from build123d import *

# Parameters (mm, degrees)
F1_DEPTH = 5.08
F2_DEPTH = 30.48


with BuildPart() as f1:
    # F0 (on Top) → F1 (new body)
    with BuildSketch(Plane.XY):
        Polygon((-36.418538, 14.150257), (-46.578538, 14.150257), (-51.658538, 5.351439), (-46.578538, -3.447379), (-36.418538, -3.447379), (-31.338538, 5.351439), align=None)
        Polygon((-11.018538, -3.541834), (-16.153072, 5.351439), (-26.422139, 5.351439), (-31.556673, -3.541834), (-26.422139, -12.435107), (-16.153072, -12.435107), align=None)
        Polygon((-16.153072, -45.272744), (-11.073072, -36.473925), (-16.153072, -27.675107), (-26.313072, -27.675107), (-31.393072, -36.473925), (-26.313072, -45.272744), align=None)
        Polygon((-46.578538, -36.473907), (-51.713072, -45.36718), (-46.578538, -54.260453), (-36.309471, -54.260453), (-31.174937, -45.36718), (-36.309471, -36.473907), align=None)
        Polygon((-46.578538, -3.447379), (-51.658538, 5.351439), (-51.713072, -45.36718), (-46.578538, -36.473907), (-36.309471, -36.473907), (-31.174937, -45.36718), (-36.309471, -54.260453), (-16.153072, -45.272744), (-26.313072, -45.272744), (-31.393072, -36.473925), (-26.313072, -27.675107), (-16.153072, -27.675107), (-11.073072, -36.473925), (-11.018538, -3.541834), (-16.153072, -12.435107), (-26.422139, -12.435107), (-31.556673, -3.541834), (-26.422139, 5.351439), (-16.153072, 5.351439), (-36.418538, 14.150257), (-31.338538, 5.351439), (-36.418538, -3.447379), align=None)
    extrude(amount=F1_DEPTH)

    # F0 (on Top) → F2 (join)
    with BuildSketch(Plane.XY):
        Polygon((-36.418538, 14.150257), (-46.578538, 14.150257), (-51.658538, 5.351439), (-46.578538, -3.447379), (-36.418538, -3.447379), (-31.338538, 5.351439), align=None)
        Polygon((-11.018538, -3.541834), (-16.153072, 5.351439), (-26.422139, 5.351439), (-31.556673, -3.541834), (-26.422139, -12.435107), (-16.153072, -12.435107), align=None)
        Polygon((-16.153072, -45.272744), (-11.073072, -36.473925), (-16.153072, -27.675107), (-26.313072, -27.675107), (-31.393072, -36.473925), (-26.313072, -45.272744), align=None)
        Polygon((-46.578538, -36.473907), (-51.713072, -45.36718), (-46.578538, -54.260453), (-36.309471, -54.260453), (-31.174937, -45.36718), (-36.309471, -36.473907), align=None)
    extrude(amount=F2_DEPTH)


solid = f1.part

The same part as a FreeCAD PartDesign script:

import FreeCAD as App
import Part
import Sketcher
Q = App.Units.Quantity

doc = App.newDocument("Part")
body = doc.addObject("PartDesign::Body", "Body")

# Sketch on XY plane
sketch1 = doc.addObject("Sketcher::SketchObject", "Sketch")
body.addObject(sketch1)
sketch1.AttachmentSupport = (doc.XY_Plane, [""])
sketch1.MapMode = "FlatFace"
sketch1.addGeometry([
    Part.LineSegment(App.Vector(-36.418538, 14.150257, 0), App.Vector(-46.578538, 14.150257, 0)),  # 0
    Part.LineSegment(App.Vector(-46.578538, 14.150257, 0), App.Vector(-51.658538, 5.351439, 0)),  # 1
    Part.LineSegment(App.Vector(-51.658538, 5.351439, 0), App.Vector(-51.713072, -45.36718, 0)),  # 2
    Part.LineSegment(App.Vector(-51.713072, -45.36718, 0), App.Vector(-46.578538, -54.260453, 0)),  # 3
    Part.LineSegment(App.Vector(-46.578538, -54.260453, 0), App.Vector(-36.309471, -54.260453, 0)),  # 4
    Part.LineSegment(App.Vector(-36.309471, -54.260453, 0), App.Vector(-16.153072, -45.272744, 0)),  # 5
    Part.LineSegment(App.Vector(-16.153072, -45.272744, 0), App.Vector(-11.073072, -36.473925, 0)),  # 6
    Part.LineSegment(App.Vector(-11.073072, -36.473925, 0), App.Vector(-11.018538, -3.541834, 0)),  # 7
    Part.LineSegment(App.Vector(-11.018538, -3.541834, 0), App.Vector(-16.153072, 5.351439, 0)),  # 8
    Part.LineSegment(App.Vector(-16.153072, 5.351439, 0), App.Vector(-36.418538, 14.150257, 0)),  # 9
], False)
sketch1.addConstraint([
    Sketcher.Constraint("Coincident", 0, 2, 1, 1),
    Sketcher.Constraint("Coincident", 1, 2, 2, 1),
    Sketcher.Constraint("Coincident", 2, 2, 3, 1),
    Sketcher.Constraint("Coincident", 3, 2, 4, 1),
    Sketcher.Constraint("Coincident", 4, 2, 5, 1),
    Sketcher.Constraint("Coincident", 5, 2, 6, 1),
    Sketcher.Constraint("Coincident", 6, 2, 7, 1),
    Sketcher.Constraint("Coincident", 7, 2, 8, 1),
    Sketcher.Constraint("Coincident", 8, 2, 9, 1),
    Sketcher.Constraint("Coincident", 9, 2, 0, 1),
    Sketcher.Constraint("Horizontal", 0),
    Sketcher.Constraint("Horizontal", 4),
    Sketcher.Constraint("Parallel", 1, 6),
    Sketcher.Constraint("Parallel", 3, 8),
    Sketcher.Constraint("Horizontal", 1, 2, 8, 2),
    Sketcher.Constraint("Vertical", 0, 2, 3, 2),
    Sketcher.Constraint("Vertical", 5, 2, 8, 2),
    Sketcher.Constraint("Equal", 1, 6),
    Sketcher.Constraint("Equal", 3, 8),
    Sketcher.Constraint("DistanceX", 0, 2, 0, 1, Q("0.4 in")),
    Sketcher.Constraint("Angle", 1, Q("-120 deg")),
    Sketcher.Constraint("Angle", 3, Q("-59.999998 deg")),
    Sketcher.Constraint("DistanceX", 9, 2, 7, 2, Q("1 in")),
    Sketcher.Constraint("Distance", 1, Q("0.4 in")),
    Sketcher.Constraint("DistanceX", 2, 2, 4, 2, Q("15.403601 mm")),
    Sketcher.Constraint("DistanceY", 5, 2, 0, 2, Q("59.423001 mm")),
    Sketcher.Constraint("Distance", 2, Q("50.718648 mm")),
    Sketcher.Constraint("Distance", 5, Q("22.069421 mm")),
    Sketcher.Constraint("DistanceX", 0, 2, -1, 1, Q("46.578538 mm")),
    Sketcher.Constraint("DistanceY", -1, 1, 1, 2, Q("5.351439 mm")),
])
pad1 = doc.addObject("PartDesign::Pad", "Pad")
body.addObject(pad1)
pad1.Profile = sketch1
pad1.Length = Q("0.2 in")

# Sketch on XY plane
sketch2 = doc.addObject("Sketcher::SketchObject", "Sketch001")
body.addObject(sketch2)
sketch2.AttachmentSupport = (doc.XY_Plane, [""])
sketch2.MapMode = "FlatFace"
sketch2.addGeometry([
    Part.LineSegment(App.Vector(-36.418538, 14.150257, 0), App.Vector(-46.578538, 14.150257, 0)),  # 0
    Part.LineSegment(App.Vector(-46.578538, 14.150257, 0), App.Vector(-51.658538, 5.351439, 0)),  # 1
    Part.LineSegment(App.Vector(-51.658538, 5.351439, 0), App.Vector(-46.578538, -3.447379, 0)),  # 2
    Part.LineSegment(App.Vector(-46.578538, -3.447379, 0), App.Vector(-36.418538, -3.447379, 0)),  # 3
    Part.LineSegment(App.Vector(-36.418538, -3.447379, 0), App.Vector(-31.338538, 5.351439, 0)),  # 4
    Part.LineSegment(App.Vector(-31.338538, 5.351439, 0), App.Vector(-36.418538, 14.150257, 0)),  # 5
    Part.LineSegment(App.Vector(-11.018538, -3.541834, 0), App.Vector(-16.153072, 5.351439, 0)),  # 6
    Part.LineSegment(App.Vector(-16.153072, 5.351439, 0), App.Vector(-26.422139, 5.351439, 0)),  # 7
    Part.LineSegment(App.Vector(-26.422139, 5.351439, 0), App.Vector(-31.556673, -3.541834, 0)),  # 8
    Part.LineSegment(App.Vector(-31.556673, -3.541834, 0), App.Vector(-26.422139, -12.435107, 0)),  # 9
    Part.LineSegment(App.Vector(-26.422139, -12.435107, 0), App.Vector(-16.153072, -12.435107, 0)),  # 10
    Part.LineSegment(App.Vector(-16.153072, -12.435107, 0), App.Vector(-11.018538, -3.541834, 0)),  # 11
    Part.LineSegment(App.Vector(-16.153072, -45.272744, 0), App.Vector(-11.073072, -36.473925, 0)),  # 12
    Part.LineSegment(App.Vector(-11.073072, -36.473925, 0), App.Vector(-16.153072, -27.675107, 0)),  # 13
    Part.LineSegment(App.Vector(-16.153072, -27.675107, 0), App.Vector(-26.313072, -27.675107, 0)),  # 14
    Part.LineSegment(App.Vector(-26.313072, -27.675107, 0), App.Vector(-31.393072, -36.473925, 0)),  # 15
    Part.LineSegment(App.Vector(-31.393072, -36.473925, 0), App.Vector(-26.313072, -45.272744, 0)),  # 16
    Part.LineSegment(App.Vector(-26.313072, -45.272744, 0), App.Vector(-16.153072, -45.272744, 0)),  # 17
    Part.LineSegment(App.Vector(-46.578538, -36.473907, 0), App.Vector(-51.713072, -45.36718, 0)),  # 18
    Part.LineSegment(App.Vector(-51.713072, -45.36718, 0), App.Vector(-46.578538, -54.260453, 0)),  # 19
    Part.LineSegment(App.Vector(-46.578538, -54.260453, 0), App.Vector(-36.309471, -54.260453, 0)),  # 20
    Part.LineSegment(App.Vector(-36.309471, -54.260453, 0), App.Vector(-31.174937, -45.36718, 0)),  # 21
    Part.LineSegment(App.Vector(-31.174937, -45.36718, 0), App.Vector(-36.309471, -36.473907, 0)),  # 22
    Part.LineSegment(App.Vector(-36.309471, -36.473907, 0), App.Vector(-46.578538, -36.473907, 0)),  # 23
], False)
sketch2.addConstraint([
    Sketcher.Constraint("Coincident", 0, 2, 1, 1),
    Sketcher.Constraint("Coincident", 1, 2, 2, 1),
    Sketcher.Constraint("Coincident", 2, 2, 3, 1),
    Sketcher.Constraint("Coincident", 3, 2, 4, 1),
    Sketcher.Constraint("Coincident", 4, 2, 5, 1),
    Sketcher.Constraint("Coincident", 5, 2, 0, 1),
    Sketcher.Constraint("Coincident", 6, 2, 7, 1),
    Sketcher.Constraint("Coincident", 7, 2, 8, 1),
    Sketcher.Constraint("Coincident", 8, 2, 9, 1),
    Sketcher.Constraint("Coincident", 9, 2, 10, 1),
    Sketcher.Constraint("Coincident", 10, 2, 11, 1),
    Sketcher.Constraint("Coincident", 11, 2, 6, 1),
    Sketcher.Constraint("Coincident", 12, 2, 13, 1),
    Sketcher.Constraint("Coincident", 13, 2, 14, 1),
    Sketcher.Constraint("Coincident", 14, 2, 15, 1),
    Sketcher.Constraint("Coincident", 15, 2, 16, 1),
    Sketcher.Constraint("Coincident", 16, 2, 17, 1),
    Sketcher.Constraint("Coincident", 17, 2, 12, 1),
    Sketcher.Constraint("Coincident", 18, 2, 19, 1),
    Sketcher.Constraint("Coincident", 19, 2, 20, 1),
    Sketcher.Constraint("Coincident", 20, 2, 21, 1),
    Sketcher.Constraint("Coincident", 21, 2, 22, 1),
    Sketcher.Constraint("Coincident", 22, 2, 23, 1),
    Sketcher.Constraint("Coincident", 23, 2, 18, 1),
    Sketcher.Constraint("Horizontal", 0),
    Sketcher.Constraint("Horizontal", 3),
    Sketcher.Constraint("Horizontal", 7),
    Sketcher.Constraint("Horizontal", 10),
    Sketcher.Constraint("Horizontal", 14),
    Sketcher.Constraint("Horizontal", 17),
    Sketcher.Constraint("Horizontal", 20),
    Sketcher.Constraint("Horizontal", 23),
    Sketcher.Constraint("Parallel", 1, 4),
    Sketcher.Constraint("Parallel", 2, 5),
    Sketcher.Constraint("Parallel", 5, 6),
    Sketcher.Constraint("Parallel", 4, 8),
    Sketcher.Constraint("Parallel", 6, 9),
    Sketcher.Constraint("Parallel", 8, 11),
    Sketcher.Constraint("Parallel", 11, 12),
    Sketcher.Constraint("Parallel", 9, 13),
    Sketcher.Constraint("Parallel", 12, 15),
    Sketcher.Constraint("Parallel", 13, 16),
    Sketcher.Constraint("Parallel", 15, 18),
    Sketcher.Constraint("Parallel", 16, 19),
    Sketcher.Constraint("Parallel", 18, 21),
    Sketcher.Constraint("Parallel", 19, 22),
    Sketcher.Constraint("Horizontal", 1, 2, 4, 2),
    Sketcher.Constraint("Horizontal", 4, 2, 6, 2),
    Sketcher.Constraint("Horizontal", 8, 2, 11, 2),
    Sketcher.Constraint("Horizontal", 12, 2, 15, 2),
    Sketcher.Constraint("Horizontal", 18, 2, 21, 2),
    Sketcher.Constraint("Vertical", 0, 2, 2, 2),
    Sketcher.Constraint("Vertical", 3, 2, 5, 2),
    Sketcher.Constraint("Vertical", 7, 2, 9, 2),
    Sketcher.Constraint("Vertical", 10, 2, 13, 2),
    Sketcher.Constraint("Vertical", 14, 2, 16, 2),
    Sketcher.Constraint("Vertical", 2, 2, 19, 2),
    Sketcher.Constraint("Vertical", 20, 2, 22, 2),
    Sketcher.Constraint("Equal", 3, 14),
    Sketcher.Constraint("Equal", 10, 20),
    Sketcher.Constraint("Equal", 5, 12),
    Sketcher.Constraint("Equal", 11, 18),
    Sketcher.Constraint("DistanceX", 0, 2, 0, 1, Q("0.4 in")),
    Sketcher.Constraint("Angle", 1, Q("-120 deg")),
    Sketcher.Constraint("DistanceX", 18, 2, 16, 2, Q("1 in")),
    Sketcher.Constraint("Distance", 1, Q("0.4 in")),
    Sketcher.Constraint("DistanceY", 13, 2, 10, 2, Q("0.6 in")),
    Sketcher.Constraint("DistanceX", 4, 2, 7, 2, Q("4.916399 mm")),
    Sketcher.Constraint("DistanceY", 22, 2, 14, 2, Q("8.7988 mm")),
    Sketcher.Constraint("DistanceX", 7, 2, 7, 1, Q("10.269067 mm")),
    Sketcher.Constraint("DistanceX", 0, 2, -1, 1, Q("46.578538 mm")),
    Sketcher.Constraint("DistanceY", -1, 1, 1, 2, Q("5.351439 mm")),
])
pad2 = doc.addObject("PartDesign::Pad", "Pad001")
body.addObject(pad2)
pad2.Profile = sketch2
pad2.Length = Q("1.2 in")

doc.recompute()
